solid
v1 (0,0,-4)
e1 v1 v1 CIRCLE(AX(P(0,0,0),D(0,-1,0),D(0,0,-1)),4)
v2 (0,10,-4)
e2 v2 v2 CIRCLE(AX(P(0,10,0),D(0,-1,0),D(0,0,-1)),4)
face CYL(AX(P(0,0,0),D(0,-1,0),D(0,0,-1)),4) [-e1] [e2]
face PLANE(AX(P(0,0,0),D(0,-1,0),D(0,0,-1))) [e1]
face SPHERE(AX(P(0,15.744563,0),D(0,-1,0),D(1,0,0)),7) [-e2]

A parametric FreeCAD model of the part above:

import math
import FreeCAD as App
import Part
import Sketcher
Q = App.Units.Quantity

doc = App.newDocument("Part")
body = doc.addObject("PartDesign::Body", "Body")

sketch1 = body.newObject("Sketcher::SketchObject", "Sketch")
sketch1.AttachmentSupport = (doc.getObject("XY_Plane"), [""])
sketch1.MapMode = "FlatFace"
sketch1.addGeometry(Part.LineSegment(App.Vector(0, 0, 0), App.Vector(4, 0, 0)), False)
sketch1.addGeometry(Part.LineSegment(App.Vector(4, 0, 0), App.Vector(4, 10, 0)), False)
sketch1.addGeometry(Part.ArcOfCircle(Part.Circle(App.Vector(0, 15.7, 0), App.Vector(0, 0, 1), 7), math.radians(-55), math.radians(90)), False)
sketch1.addGeometry(Part.LineSegment(App.Vector(0, 22.7, 0), App.Vector(0, 0, 0)), False)
sketch1.addConstraint(Sketcher.Constraint("Coincident", 0, 2, 1, 1))
sketch1.addConstraint(Sketcher.Constraint("Coincident", 1, 2, 2, 1))
sketch1.addConstraint(Sketcher.Constraint("Coincident", 2, 2, 3, 1))
sketch1.addConstraint(Sketcher.Constraint("Coincident", 3, 2, 0, 1))
sketch1.addConstraint(Sketcher.Constraint("Horizontal", 0))
sketch1.addConstraint(Sketcher.Constraint("Vertical", 1))
sketch1.addConstraint(Sketcher.Constraint("Vertical", 3))
sketch1.addConstraint(Sketcher.Constraint("Coincident", 3, 2, -1, 1))
sketch1.addConstraint(Sketcher.Constraint("PointOnObject", 2, 3, -2))
sketch1.addConstraint(Sketcher.Constraint("Radius", 2, Q("7 mm")))
sketch1.addConstraint(Sketcher.Constraint("DistanceX", 0, 1, 0, 2, Q("4 mm")))
sketch1.addConstraint(Sketcher.Constraint("DistanceY", 1, 1, 1, 2, Q("10 mm")))
revolution = body.newObject("PartDesign::Revolution", "Revolution")
revolution.Profile = sketch1
revolution.ReferenceAxis = (sketch1, ["V_Axis"])
revolution.Angle = 360

doc.recompute()
